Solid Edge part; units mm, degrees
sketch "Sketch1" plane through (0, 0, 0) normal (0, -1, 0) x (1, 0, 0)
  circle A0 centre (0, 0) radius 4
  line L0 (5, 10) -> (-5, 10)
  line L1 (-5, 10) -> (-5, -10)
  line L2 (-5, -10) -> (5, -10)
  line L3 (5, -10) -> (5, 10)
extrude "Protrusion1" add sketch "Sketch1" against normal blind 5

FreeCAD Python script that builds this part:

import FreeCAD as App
import Part
import Sketcher

V = App.Vector
Q = App.Units.Quantity

doc = App.newDocument("Part")
body = doc.addObject("PartDesign::Body", "Body")

sketch1 = body.newObject("Sketcher::SketchObject", "Sketch")
sketch1.AttachmentSupport = (doc.getObject("XZ_Plane"), [""])
sketch1.MapMode = "FlatFace"
sketch1.addGeometry(Part.LineSegment(V(5, -10, 0), V(5, 10, 0)), False)
sketch1.addGeometry(Part.LineSegment(V(5, 10, 0), V(-5, 10, 0)), False)
sketch1.addGeometry(Part.LineSegment(V(-5, 10, 0), V(-5, -10, 0)), False)
sketch1.addGeometry(Part.LineSegment(V(-5, -10, 0), V(5, -10, 0)), False)
sketch1.addGeometry(Part.Circle(V(0, 0, 0), V(0, 0, 1), 4), False)
sketch1.addConstraint(Sketcher.Constraint("Coincident", 0, 2, 1, 1))
sketch1.addConstraint(Sketcher.Constraint("Coincident", 1, 2, 2, 1))
sketch1.addConstraint(Sketcher.Constraint("Coincident", 2, 2, 3, 1))
sketch1.addConstraint(Sketcher.Constraint("Coincident", 3, 2, 0, 1))
sketch1.addConstraint(Sketcher.Constraint("Vertical", 0))
sketch1.addConstraint(Sketcher.Constraint("Horizontal", 1))
sketch1.addConstraint(Sketcher.Constraint("Vertical", 2))
sketch1.addConstraint(Sketcher.Constraint("Horizontal", 3))
sketch1.addConstraint(Sketcher.Constraint("Coincident", 4, 3, -1, 1))
sketch1.addConstraint(Sketcher.Constraint("Symmetric", 0, 2, 2, 2, -1, 1))
sketch1.addConstraint(Sketcher.Constraint("Diameter", 4, Q("8 mm")))
sketch1.addConstraint(Sketcher.Constraint("DistanceX", 1, 2, 1, 1, Q("10 mm")))
sketch1.addConstraint(Sketcher.Constraint("DistanceY", 0, 1, 0, 2, Q("20 mm")))
pad1 = body.newObject("PartDesign::Pad", "Pad")
pad1.Profile = sketch1
pad1.Length = 5
pad1.Reversed = True

doc.recompute()
